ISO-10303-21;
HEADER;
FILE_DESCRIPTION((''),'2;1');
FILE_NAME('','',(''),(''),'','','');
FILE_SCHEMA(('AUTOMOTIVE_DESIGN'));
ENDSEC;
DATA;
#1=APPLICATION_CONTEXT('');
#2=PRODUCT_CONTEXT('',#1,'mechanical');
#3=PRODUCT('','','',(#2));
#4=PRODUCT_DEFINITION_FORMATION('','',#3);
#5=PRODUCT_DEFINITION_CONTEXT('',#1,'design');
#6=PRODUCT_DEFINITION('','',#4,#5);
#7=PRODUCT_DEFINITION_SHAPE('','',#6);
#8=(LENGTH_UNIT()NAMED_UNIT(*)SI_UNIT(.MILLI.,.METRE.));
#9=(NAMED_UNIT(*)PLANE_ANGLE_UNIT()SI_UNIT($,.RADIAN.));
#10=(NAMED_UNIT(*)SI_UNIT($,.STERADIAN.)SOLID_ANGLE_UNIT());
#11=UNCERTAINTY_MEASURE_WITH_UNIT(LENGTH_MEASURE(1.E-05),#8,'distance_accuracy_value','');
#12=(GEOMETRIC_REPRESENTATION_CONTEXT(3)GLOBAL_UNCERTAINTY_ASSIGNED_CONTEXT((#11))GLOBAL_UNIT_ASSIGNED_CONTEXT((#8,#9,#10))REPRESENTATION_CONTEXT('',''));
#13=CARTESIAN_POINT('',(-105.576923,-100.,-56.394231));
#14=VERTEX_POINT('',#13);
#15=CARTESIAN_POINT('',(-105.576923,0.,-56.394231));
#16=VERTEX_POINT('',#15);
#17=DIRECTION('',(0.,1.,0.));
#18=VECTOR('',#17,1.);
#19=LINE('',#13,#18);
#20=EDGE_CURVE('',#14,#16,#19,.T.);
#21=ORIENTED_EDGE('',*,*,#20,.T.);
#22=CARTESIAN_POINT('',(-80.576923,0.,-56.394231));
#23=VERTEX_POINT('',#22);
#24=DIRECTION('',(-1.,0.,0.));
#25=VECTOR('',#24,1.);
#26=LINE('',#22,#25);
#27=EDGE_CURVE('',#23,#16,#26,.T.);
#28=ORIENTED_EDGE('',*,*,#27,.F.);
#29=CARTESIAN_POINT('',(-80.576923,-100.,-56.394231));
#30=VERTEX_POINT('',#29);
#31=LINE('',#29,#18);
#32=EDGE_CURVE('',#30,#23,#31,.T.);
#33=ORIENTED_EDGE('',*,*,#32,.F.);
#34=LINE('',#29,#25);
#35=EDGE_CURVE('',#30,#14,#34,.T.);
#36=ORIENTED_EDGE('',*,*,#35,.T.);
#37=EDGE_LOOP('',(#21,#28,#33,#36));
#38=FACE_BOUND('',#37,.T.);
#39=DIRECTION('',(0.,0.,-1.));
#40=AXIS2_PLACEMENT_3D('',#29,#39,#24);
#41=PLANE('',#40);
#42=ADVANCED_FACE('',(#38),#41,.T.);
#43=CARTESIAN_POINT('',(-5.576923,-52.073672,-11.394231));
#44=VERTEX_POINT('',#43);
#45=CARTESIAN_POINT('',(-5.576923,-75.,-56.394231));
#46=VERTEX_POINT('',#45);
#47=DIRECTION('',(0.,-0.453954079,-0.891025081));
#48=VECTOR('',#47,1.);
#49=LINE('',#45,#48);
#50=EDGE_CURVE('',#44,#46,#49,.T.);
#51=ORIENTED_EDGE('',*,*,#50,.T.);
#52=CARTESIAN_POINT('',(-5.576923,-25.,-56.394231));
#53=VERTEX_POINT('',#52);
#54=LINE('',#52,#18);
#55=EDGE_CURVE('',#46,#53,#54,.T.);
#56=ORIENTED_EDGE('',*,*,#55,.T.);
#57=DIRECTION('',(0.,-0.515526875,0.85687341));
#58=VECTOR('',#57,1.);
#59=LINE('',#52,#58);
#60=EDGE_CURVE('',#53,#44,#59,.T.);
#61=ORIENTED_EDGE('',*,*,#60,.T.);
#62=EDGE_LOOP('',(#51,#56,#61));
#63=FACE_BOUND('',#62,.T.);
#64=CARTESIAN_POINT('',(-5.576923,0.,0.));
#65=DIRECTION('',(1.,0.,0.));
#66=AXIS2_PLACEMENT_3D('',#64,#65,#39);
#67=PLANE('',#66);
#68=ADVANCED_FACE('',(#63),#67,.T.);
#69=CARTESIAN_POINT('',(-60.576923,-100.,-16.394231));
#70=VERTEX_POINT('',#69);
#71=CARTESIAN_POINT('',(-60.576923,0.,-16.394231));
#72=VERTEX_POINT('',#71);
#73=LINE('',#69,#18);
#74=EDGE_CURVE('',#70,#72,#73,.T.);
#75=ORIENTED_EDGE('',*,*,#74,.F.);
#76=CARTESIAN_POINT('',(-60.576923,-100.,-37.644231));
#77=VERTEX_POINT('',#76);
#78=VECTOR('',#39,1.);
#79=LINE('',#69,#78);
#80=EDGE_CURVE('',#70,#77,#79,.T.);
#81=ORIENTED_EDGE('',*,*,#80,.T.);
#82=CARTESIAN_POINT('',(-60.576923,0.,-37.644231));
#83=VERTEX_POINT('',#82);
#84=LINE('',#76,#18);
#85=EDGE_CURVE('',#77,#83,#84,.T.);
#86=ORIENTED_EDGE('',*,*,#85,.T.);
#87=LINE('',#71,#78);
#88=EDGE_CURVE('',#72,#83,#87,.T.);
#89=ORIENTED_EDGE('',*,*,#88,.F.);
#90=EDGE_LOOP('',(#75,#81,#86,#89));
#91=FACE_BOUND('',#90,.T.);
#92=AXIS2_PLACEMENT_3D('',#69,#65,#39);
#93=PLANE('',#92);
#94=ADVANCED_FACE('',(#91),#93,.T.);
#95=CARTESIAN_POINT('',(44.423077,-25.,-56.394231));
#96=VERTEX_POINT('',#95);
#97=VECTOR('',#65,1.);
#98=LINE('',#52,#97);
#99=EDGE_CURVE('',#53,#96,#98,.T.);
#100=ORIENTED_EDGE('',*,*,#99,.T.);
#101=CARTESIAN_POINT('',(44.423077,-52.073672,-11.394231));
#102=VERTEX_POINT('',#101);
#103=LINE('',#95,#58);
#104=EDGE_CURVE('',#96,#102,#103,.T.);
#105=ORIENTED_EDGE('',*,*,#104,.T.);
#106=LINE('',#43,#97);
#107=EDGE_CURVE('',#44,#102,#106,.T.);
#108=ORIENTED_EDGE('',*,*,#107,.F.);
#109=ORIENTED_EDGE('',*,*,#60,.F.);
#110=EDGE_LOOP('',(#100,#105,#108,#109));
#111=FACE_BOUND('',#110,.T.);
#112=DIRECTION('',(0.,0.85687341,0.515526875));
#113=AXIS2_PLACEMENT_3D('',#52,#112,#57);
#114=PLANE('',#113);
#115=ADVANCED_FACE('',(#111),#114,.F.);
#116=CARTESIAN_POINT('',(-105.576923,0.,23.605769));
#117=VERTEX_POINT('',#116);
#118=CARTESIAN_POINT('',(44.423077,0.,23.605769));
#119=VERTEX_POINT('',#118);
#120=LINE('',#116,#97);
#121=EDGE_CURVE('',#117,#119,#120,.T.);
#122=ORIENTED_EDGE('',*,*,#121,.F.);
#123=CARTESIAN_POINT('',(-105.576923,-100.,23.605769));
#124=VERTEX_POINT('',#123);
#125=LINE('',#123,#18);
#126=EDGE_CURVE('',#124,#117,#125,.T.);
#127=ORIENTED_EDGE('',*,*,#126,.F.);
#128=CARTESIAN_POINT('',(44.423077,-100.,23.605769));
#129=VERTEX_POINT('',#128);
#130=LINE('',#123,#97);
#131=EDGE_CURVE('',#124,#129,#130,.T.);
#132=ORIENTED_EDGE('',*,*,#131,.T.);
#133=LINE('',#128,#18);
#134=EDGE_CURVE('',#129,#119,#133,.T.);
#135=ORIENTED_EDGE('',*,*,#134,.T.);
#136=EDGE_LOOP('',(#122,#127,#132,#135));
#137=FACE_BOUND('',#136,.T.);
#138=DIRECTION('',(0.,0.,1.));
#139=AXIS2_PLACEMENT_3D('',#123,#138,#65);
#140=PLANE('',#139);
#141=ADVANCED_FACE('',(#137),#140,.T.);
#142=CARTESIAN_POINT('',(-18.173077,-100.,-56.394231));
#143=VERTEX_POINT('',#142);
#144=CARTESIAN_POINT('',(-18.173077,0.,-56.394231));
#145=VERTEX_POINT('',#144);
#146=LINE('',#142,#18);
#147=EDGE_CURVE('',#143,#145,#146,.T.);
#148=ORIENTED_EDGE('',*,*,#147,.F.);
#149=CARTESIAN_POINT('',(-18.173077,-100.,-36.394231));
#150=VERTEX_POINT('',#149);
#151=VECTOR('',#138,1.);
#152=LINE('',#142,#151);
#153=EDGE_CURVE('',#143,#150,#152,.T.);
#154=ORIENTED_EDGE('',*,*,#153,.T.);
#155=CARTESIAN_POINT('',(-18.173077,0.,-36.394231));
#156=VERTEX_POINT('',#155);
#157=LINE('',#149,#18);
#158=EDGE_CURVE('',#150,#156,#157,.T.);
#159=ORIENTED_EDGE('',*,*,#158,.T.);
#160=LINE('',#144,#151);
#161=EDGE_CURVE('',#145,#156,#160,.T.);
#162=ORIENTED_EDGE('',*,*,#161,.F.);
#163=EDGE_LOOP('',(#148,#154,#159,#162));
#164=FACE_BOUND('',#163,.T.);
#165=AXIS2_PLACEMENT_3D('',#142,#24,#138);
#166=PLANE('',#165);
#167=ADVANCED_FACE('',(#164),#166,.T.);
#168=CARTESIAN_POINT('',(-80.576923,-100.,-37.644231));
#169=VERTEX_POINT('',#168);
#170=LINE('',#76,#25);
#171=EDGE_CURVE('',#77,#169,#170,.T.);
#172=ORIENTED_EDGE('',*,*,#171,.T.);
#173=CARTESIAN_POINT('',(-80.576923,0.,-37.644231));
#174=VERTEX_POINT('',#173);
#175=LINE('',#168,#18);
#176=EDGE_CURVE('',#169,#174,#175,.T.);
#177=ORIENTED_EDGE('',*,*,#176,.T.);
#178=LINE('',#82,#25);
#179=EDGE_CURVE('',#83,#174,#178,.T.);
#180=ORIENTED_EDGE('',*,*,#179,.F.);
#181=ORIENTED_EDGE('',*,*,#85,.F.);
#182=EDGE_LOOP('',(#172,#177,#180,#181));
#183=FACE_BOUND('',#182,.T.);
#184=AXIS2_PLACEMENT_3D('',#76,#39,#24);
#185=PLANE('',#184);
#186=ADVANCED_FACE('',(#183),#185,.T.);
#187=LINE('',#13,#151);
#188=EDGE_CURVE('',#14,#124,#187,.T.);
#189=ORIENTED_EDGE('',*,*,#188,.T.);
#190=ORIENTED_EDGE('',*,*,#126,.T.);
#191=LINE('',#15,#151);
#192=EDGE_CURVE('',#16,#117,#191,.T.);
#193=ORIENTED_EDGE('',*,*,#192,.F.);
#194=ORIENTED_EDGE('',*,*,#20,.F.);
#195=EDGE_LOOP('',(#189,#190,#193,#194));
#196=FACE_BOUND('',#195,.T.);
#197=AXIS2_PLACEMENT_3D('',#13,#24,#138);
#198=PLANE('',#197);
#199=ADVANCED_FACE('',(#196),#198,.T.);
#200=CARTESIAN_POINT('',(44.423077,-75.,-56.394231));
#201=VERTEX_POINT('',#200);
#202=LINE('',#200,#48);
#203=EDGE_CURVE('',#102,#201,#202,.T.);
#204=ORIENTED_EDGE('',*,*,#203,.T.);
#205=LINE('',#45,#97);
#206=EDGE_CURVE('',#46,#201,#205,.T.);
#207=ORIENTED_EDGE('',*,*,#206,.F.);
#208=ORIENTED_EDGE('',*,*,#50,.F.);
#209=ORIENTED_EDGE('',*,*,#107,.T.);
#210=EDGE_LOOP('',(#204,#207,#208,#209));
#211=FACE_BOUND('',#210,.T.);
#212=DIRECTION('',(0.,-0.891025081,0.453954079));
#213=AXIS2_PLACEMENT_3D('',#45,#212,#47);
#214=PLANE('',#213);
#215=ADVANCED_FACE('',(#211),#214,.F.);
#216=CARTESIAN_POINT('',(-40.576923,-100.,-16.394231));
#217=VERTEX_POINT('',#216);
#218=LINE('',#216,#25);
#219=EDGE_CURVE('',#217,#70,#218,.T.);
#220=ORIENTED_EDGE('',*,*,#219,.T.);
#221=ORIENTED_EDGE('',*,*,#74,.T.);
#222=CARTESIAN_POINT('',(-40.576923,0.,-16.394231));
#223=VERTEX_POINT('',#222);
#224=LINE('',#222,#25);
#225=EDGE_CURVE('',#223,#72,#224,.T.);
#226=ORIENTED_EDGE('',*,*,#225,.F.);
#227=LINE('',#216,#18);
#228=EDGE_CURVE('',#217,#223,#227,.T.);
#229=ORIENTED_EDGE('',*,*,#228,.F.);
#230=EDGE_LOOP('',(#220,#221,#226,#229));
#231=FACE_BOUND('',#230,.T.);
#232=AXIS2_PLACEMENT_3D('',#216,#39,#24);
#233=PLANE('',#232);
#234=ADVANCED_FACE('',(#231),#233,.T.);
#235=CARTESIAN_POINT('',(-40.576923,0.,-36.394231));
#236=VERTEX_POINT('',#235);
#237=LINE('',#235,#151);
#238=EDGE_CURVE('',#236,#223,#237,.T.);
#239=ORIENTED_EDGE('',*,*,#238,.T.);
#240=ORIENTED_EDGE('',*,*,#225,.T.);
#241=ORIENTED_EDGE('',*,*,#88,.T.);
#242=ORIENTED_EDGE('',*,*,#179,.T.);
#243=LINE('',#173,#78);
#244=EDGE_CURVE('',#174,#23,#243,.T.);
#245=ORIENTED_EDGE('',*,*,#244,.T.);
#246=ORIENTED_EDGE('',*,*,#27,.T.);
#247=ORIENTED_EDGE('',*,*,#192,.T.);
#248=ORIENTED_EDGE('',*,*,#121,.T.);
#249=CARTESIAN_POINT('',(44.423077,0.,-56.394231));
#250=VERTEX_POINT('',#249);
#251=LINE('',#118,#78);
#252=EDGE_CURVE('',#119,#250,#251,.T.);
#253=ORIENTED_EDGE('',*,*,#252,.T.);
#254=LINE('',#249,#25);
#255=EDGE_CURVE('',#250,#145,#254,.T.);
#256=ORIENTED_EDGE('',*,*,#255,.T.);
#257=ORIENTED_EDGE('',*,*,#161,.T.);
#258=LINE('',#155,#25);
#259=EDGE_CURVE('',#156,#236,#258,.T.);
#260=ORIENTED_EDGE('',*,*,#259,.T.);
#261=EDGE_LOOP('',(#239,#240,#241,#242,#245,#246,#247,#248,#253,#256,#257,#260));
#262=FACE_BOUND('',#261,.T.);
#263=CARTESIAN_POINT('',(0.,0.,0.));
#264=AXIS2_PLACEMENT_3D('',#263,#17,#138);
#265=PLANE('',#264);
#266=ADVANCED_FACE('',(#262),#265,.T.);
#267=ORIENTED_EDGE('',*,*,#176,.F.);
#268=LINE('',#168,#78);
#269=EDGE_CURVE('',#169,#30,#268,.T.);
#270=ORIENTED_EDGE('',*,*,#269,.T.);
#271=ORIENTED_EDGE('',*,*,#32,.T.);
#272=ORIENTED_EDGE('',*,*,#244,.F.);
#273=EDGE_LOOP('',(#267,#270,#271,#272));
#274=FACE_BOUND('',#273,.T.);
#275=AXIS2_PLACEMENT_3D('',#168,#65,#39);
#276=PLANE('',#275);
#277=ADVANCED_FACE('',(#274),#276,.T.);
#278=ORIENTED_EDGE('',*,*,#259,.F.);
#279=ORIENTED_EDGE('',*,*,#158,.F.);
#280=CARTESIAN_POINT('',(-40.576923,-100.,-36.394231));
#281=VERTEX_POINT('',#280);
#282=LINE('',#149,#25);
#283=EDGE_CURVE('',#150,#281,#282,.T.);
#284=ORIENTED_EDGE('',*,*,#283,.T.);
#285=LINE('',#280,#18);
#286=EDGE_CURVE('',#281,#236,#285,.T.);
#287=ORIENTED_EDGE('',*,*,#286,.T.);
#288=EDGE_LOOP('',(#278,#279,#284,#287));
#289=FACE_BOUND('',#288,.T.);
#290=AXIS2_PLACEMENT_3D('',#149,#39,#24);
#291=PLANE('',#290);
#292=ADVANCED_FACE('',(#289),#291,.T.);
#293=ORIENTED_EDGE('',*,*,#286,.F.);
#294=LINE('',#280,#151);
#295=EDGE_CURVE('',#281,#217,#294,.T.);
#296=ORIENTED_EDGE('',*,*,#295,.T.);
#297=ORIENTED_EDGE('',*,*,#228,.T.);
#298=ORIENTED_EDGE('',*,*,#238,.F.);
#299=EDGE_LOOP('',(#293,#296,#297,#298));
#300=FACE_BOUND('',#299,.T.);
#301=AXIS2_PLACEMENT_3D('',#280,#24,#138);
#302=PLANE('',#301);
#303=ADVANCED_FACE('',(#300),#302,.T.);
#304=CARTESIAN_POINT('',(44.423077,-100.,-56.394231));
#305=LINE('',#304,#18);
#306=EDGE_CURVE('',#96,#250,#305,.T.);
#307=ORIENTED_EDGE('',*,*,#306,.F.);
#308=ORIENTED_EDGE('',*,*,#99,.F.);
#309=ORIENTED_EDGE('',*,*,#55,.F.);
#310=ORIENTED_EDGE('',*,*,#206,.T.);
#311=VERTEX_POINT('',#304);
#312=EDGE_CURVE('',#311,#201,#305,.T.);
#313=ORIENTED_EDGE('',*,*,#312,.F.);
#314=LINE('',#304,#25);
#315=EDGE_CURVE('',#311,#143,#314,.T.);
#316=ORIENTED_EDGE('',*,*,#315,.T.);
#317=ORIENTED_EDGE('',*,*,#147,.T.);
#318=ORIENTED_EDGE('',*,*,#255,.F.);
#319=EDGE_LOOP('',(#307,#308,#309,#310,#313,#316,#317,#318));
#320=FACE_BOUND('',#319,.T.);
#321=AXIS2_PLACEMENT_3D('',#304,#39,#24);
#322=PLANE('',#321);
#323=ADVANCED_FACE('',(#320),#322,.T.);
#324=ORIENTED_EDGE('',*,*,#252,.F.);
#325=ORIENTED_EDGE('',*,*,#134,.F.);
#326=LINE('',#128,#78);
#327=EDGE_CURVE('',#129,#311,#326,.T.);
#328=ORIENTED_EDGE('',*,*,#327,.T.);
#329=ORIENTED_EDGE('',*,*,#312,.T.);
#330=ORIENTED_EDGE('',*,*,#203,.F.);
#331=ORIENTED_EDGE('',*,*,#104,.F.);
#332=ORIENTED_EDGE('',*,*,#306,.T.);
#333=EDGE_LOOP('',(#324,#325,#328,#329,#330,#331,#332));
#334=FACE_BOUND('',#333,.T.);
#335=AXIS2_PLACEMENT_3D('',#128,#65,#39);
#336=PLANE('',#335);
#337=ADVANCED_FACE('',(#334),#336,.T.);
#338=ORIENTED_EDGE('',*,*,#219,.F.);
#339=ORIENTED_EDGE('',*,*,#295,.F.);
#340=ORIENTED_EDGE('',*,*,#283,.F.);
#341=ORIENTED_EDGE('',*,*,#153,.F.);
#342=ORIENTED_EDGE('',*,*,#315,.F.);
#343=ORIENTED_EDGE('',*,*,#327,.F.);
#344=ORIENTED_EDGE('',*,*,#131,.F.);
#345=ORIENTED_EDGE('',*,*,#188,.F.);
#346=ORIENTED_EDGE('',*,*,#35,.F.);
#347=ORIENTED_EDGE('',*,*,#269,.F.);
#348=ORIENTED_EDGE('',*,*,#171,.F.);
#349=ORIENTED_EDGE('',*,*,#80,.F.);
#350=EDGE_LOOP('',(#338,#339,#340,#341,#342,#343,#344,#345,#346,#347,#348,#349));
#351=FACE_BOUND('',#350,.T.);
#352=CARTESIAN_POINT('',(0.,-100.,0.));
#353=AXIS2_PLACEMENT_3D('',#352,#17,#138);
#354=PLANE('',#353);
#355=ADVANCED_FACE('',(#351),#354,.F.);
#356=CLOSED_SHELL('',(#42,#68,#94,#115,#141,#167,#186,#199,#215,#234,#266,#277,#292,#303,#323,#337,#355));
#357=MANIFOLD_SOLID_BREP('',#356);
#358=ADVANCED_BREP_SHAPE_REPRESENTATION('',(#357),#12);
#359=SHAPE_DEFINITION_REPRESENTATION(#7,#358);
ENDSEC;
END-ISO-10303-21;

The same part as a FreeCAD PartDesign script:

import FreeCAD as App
import Part
import Sketcher

doc = App.newDocument("Part")
params = doc.addObject("Spreadsheet::Sheet", "Params")
for row, (alias, value) in enumerate([
    ("sketch1_width", "150 mm"),
    ("sketch1_width2", "20 mm"),
    ("sketch1_width3", "25 mm"),
    ("sketch1_height", "80 mm"),
    ("sketch1_height2", "21.25 mm"),
    ("pad1_length", "100 mm"),
    ("sketch2_width", "50 mm"),
    ("pocket1_length", "50 mm"),
], start=1):
    params.set(f"A{row}", alias)
    params.set(f"B{row}", "=" + value)
    params.setAlias(f"B{row}", alias)

body = doc.addObject("PartDesign::Body", "Body")

# Sketch on XZ plane
sketch1 = body.newObject("Sketcher::SketchObject", "Sketch")
sketch1.AttachmentSupport = (doc.getObject("XZ_Plane"), [""])
sketch1.MapMode = "FlatFace"
sketch1.addGeometry([
    Part.LineSegment(App.Vector(-106, 24, 0), App.Vector(44, 24, 0)),  # 0
    Part.LineSegment(App.Vector(44, 24, 0), App.Vector(44, -56, 0)),  # 1
    Part.LineSegment(App.Vector(44, -56, 0), App.Vector(-18, -56, 0)),  # 2
    Part.LineSegment(App.Vector(-18, -56, 0), App.Vector(-18, -36, 0)),  # 3
    Part.LineSegment(App.Vector(-18, -36, 0), App.Vector(-41, -36, 0)),  # 4
    Part.LineSegment(App.Vector(-41, -36, 0), App.Vector(-41, -16, 0)),  # 5
    Part.LineSegment(App.Vector(-41, -16, 0), App.Vector(-61, -16, 0)),  # 6
    Part.LineSegment(App.Vector(-61, -16, 0), App.Vector(-61, -38, 0)),  # 7
    Part.LineSegment(App.Vector(-61, -38, 0), App.Vector(-81, -38, 0)),  # 8
    Part.LineSegment(App.Vector(-81, -38, 0), App.Vector(-81, -56, 0)),  # 9
    Part.LineSegment(App.Vector(-81, -56, 0), App.Vector(-106, -56, 0)),  # 10
    Part.LineSegment(App.Vector(-106, -56, 0), App.Vector(-106, 24, 0)),  # 11
], False)
sketch1.addConstraint([
    Sketcher.Constraint("Coincident", 0, 2, 1, 1),
    Sketcher.Constraint("Coincident", 1, 2, 2, 1),
    Sketcher.Constraint("Coincident", 2, 2, 3, 1),
    Sketcher.Constraint("Coincident", 3, 2, 4, 1),
    Sketcher.Constraint("Coincident", 4, 2, 5, 1),
    Sketcher.Constraint("Coincident", 5, 2, 6, 1),
    Sketcher.Constraint("Coincident", 6, 2, 7, 1),
    Sketcher.Constraint("Coincident", 7, 2, 8, 1),
    Sketcher.Constraint("Coincident", 8, 2, 9, 1),
    Sketcher.Constraint("Coincident", 9, 2, 10, 1),
    Sketcher.Constraint("Coincident", 10, 2, 11, 1),
    Sketcher.Constraint("Coincident", 11, 2, 0, 1),
    Sketcher.Constraint("Horizontal", 0),
    Sketcher.Constraint("Vertical", 1),
    Sketcher.Constraint("Horizontal", 2),
    Sketcher.Constraint("Vertical", 3),
    Sketcher.Constraint("Horizontal", 4),
    Sketcher.Constraint("Vertical", 5),
    Sketcher.Constraint("Horizontal", 6),
    Sketcher.Constraint("Vertical", 7),
    Sketcher.Constraint("Horizontal", 8),
    Sketcher.Constraint("Vertical", 9),
    Sketcher.Constraint("Horizontal", 10),
    Sketcher.Constraint("Vertical", 11),
    Sketcher.Constraint("Horizontal", 2, 2, 9, 2),
    Sketcher.Constraint("Equal", 6, 8),
    Sketcher.Constraint("Equal", 8, 3),
    Sketcher.Constraint("Equal", 3, 5),
    Sketcher.Constraint("DistanceX", 0, 1, 0, 2, 150.0),
    Sketcher.Constraint("DistanceX", 6, 2, 6, 1, 20.0),
    Sketcher.Constraint("DistanceX", 10, 2, 10, 1, 25.0),
    Sketcher.Constraint("DistanceY", 1, 2, 1, 1, 80.0),
    Sketcher.Constraint("DistanceY", 7, 2, 7, 1, 21.25),
    Sketcher.Constraint("DistanceX", 2, 2, 2, 1, 62.596154),
    Sketcher.Constraint("DistanceY", -1, 1, 0, 2, 23.605769),
    Sketcher.Constraint("DistanceX", -1, 1, 0, 2, 44.423077),
])
sketch1.setExpression("Constraints[28]", "Params.sketch1_width")
sketch1.setExpression("Constraints[29]", "Params.sketch1_width2")
sketch1.setExpression("Constraints[30]", "Params.sketch1_width3")
sketch1.setExpression("Constraints[31]", "Params.sketch1_height")
sketch1.setExpression("Constraints[32]", "Params.sketch1_height2")
pad1 = body.newObject("PartDesign::Pad", "Pad")
pad1.Profile = sketch1
pad1.setExpression("Length", "Params.pad1_length")

# Sketch on YZ plane
sketch2 = body.newObject("Sketcher::SketchObject", "Sketch001")
sketch2.AttachmentSupport = (doc.getObject("YZ_Plane"), [""])
sketch2.MapMode = "FlatFace"
sketch2.AttachmentOffset = App.Placement(App.Vector(0, 0, 44.423077), App.Rotation())
sketch2.addGeometry([
    Part.LineSegment(App.Vector(-25, -56, 0), App.Vector(-52, -11, 0)),
    Part.LineSegment(App.Vector(-52, -11, 0), App.Vector(-75, -56, 0)),
    Part.LineSegment(App.Vector(-75, -56, 0), App.Vector(-25, -56, 0)),
], False)
sketch2.addConstraint([
    Sketcher.Constraint("Coincident", 0, 2, 1, 1),
    Sketcher.Constraint("Coincident", 1, 2, 2, 1),
    Sketcher.Constraint("Coincident", 2, 2, 0, 1),
    Sketcher.Constraint("Horizontal", 2),
    Sketcher.Constraint("DistanceX", 2, 1, 2, 2, 50.0),
    Sketcher.Constraint("DistanceX", 1, 2, -1, 1, 75.0),
    Sketcher.Constraint("DistanceY", 1, 2, 0, 2, 45.0),
    Sketcher.Constraint("Distance", 0, 52.516509),
    Sketcher.Constraint("DistanceY", 0, 2, -1, 1, 11.394231),
])
sketch2.setExpression("Constraints[4]", "Params.sketch2_width")
pocket1 = body.newObject("PartDesign::Pocket", "Pocket")
pocket1.Profile = sketch2
pocket1.setExpression("Length", "Params.pocket1_length")

doc.recompute()
